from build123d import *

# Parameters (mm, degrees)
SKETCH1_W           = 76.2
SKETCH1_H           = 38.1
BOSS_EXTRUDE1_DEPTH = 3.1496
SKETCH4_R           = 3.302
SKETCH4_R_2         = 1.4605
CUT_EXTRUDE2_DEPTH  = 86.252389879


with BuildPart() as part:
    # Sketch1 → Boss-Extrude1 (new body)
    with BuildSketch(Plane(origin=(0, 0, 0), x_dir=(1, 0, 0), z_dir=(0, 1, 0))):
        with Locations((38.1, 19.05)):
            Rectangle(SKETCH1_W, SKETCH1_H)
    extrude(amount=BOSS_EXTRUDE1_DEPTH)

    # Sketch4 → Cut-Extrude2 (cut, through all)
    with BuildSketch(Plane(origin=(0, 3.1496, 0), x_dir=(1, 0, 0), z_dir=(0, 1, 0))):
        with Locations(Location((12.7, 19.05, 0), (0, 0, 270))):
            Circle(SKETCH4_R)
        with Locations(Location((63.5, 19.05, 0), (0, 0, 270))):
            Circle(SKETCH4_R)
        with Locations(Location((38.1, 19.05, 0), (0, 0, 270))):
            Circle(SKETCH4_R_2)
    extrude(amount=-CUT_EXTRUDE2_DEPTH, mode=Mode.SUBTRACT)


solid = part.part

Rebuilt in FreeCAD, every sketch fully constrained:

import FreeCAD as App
import Part
import Sketcher

V = App.Vector
Q = App.Units.Quantity

doc = App.newDocument("Part")
body = doc.addObject("PartDesign::Body", "Body")

sketch1 = doc.addObject("Sketcher::SketchObject", "Sketch")
body.addObject(sketch1)
sketch1.AttachmentSupport = (doc.XZ_Plane, [""])
sketch1.MapMode = "FlatFace"
sketch1.addGeometry([
    Part.LineSegment(V(0, -38, 0), V(0, 0, 0)),
    Part.LineSegment(V(0, 0, 0), V(76, 0, 0)),
    Part.LineSegment(V(76, 0, 0), V(76, -38, 0)),
    Part.LineSegment(V(76, -38, 0), V(0, -38, 0)),
], False)
sketch1.addConstraint([
    Sketcher.Constraint("Coincident", 0, 2, 1, 1),
    Sketcher.Constraint("Coincident", 1, 2, 2, 1),
    Sketcher.Constraint("Coincident", 2, 2, 3, 1),
    Sketcher.Constraint("Coincident", 3, 2, 0, 1),
    Sketcher.Constraint("Vertical", 0),
    Sketcher.Constraint("Horizontal", 1),
    Sketcher.Constraint("Vertical", 2),
    Sketcher.Constraint("Horizontal", 3),
    Sketcher.Constraint("Coincident", 0, 2, -1, 1),
    Sketcher.Constraint("DistanceX", 1, 1, 1, 2, Q("3 in")),
    Sketcher.Constraint("DistanceY", 0, 1, 0, 2, Q("1.5 in")),
])
pad1 = doc.addObject("PartDesign::Pad", "Pad")
body.addObject(pad1)
pad1.Profile = sketch1
pad1.Length = Q("0.124 in")
pad1.Reversed = True

sketch2 = doc.addObject("Sketcher::SketchObject", "Sketch001")
body.addObject(sketch2)
sketch2.AttachmentSupport = (doc.XZ_Plane, [""])
sketch2.MapMode = "FlatFace"
sketch2.AttachmentOffset = App.Placement(V(0, 0, -0.124 * 25.4), App.Rotation())
sketch2.addGeometry([
    Part.Circle(V(12.7, -19.1, 0), V(0, 0, 1), 3.3),
    Part.Circle(V(63.5, -19.1, 0), V(0, 0, 1), 3.3),
    Part.Circle(V(38.1, -19.1, 0), V(0, 0, 1), 1.5),
], False)
sketch2.addConstraint([
    Sketcher.Constraint("Equal", 0, 1),
    Sketcher.Constraint("Horizontal", 0, 3, 1, 3),
    Sketcher.Constraint("Horizontal", 1, 3, 2, 3),
    Sketcher.Constraint("Diameter", 0, Q("0.26 in")),
    Sketcher.Constraint("Diameter", 2, Q("0.115 in")),
    Sketcher.Constraint("DistanceX", 0, 3, 1, 3, Q("2 in")),
    Sketcher.Constraint("DistanceX", 2, 3, 1, 3, Q("1 in")),
    Sketcher.Constraint("DistanceX", -1, 1, 0, 3, Q("0.5 in")),
    Sketcher.Constraint("DistanceY", 0, 3, -1, 1, Q("0.75 in")),
])
pocket1 = doc.addObject("PartDesign::Pocket", "Pocket")
body.addObject(pocket1)
pocket1.Profile = sketch2
pocket1.Type = "ThroughAll"
pocket1.Reversed = True

doc.recompute()
